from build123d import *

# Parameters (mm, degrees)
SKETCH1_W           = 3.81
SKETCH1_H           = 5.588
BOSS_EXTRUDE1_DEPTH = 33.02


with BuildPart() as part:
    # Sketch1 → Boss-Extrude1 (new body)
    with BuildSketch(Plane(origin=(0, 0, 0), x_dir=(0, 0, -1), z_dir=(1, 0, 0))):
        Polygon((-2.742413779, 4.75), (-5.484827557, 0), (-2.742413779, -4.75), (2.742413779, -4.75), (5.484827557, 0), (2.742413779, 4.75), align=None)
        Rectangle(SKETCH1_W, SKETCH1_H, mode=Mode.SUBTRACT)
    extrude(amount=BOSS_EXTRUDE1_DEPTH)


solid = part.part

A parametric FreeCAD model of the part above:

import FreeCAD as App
import Part
import Sketcher
from FreeCAD import Vector
Q = App.Units.Quantity


def add_polygon(sketch, points):
    """Adds a closed chain of lines whose ends are joined by coincident constraints."""
    first, n = sketch.GeometryCount, len(points)
    for a, b in zip(points, points[1:] + points[:1]):
        sketch.addGeometry(Part.LineSegment(App.Vector(*a, 0), App.Vector(*b, 0)), False)
    for i in range(n):
        sketch.addConstraint(Sketcher.Constraint("Coincident", first + i, 2, first + (i + 1) % n, 1))

doc = App.newDocument("Part")
body = doc.addObject("PartDesign::Body", "Body")

# Sketch on YZ plane
sketch1 = body.newObject("Sketcher::SketchObject", "Sketch")
sketch1.AttachmentSupport = (doc.getObject("YZ_Plane"), [""])
sketch1.MapMode = "FlatFace"
add_polygon(sketch1, [(4.8, 2.7), (0, 5.5), (-4.8, 2.7), (-4.8, -2.7), (0, -5.5), (4.8, -2.7)])  # lines 0-5
add_polygon(sketch1, [(-2.8, -1.9), (-2.8, 1.9), (2.8, 1.9), (2.8, -1.9)])  # lines 6-9
sketch1.addConstraint(Sketcher.Constraint("Vertical", 2))
sketch1.addConstraint(Sketcher.Constraint("Vertical", 5))
sketch1.addConstraint(Sketcher.Constraint("Vertical", 6))
sketch1.addConstraint(Sketcher.Constraint("Horizontal", 7))
sketch1.addConstraint(Sketcher.Constraint("Vertical", 8))
sketch1.addConstraint(Sketcher.Constraint("Horizontal", 9))
sketch1.addConstraint(Sketcher.Constraint("Symmetric", 0, 2, 3, 2, -1, 1))
sketch1.addConstraint(Sketcher.Constraint("Symmetric", 1, 2, 4, 2, -1, 1))
sketch1.addConstraint(Sketcher.Constraint("Symmetric", 6, 2, 8, 2, -1, 1))
sketch1.addConstraint(Sketcher.Constraint("PointOnObject", 0, 2, -2))
sketch1.addConstraint(Sketcher.Constraint("Parallel", 0, 3))
sketch1.addConstraint(Sketcher.Constraint("Horizontal", 2, 2, 4, 2))
sketch1.addConstraint(Sketcher.Constraint("Angle", 0, Q("150 deg")))
sketch1.addConstraint(Sketcher.Constraint("DistanceX", 7, 1, 7, 2, Q("0.22 in")))
sketch1.addConstraint(Sketcher.Constraint("DistanceY", 6, 1, 6, 2, Q("0.15 in")))
sketch1.addConstraint(Sketcher.Constraint("DistanceX", 1, 2, -1, 1, Q("4.75 mm")))
sketch1.addConstraint(Sketcher.Constraint("DistanceY", 2, 2, 2, 1, Q("5.484828 mm")))
pad1 = body.newObject("PartDesign::Pad", "Pad")
pad1.Profile = sketch1
pad1.Length = Q("1.3 in")

doc.recompute()
